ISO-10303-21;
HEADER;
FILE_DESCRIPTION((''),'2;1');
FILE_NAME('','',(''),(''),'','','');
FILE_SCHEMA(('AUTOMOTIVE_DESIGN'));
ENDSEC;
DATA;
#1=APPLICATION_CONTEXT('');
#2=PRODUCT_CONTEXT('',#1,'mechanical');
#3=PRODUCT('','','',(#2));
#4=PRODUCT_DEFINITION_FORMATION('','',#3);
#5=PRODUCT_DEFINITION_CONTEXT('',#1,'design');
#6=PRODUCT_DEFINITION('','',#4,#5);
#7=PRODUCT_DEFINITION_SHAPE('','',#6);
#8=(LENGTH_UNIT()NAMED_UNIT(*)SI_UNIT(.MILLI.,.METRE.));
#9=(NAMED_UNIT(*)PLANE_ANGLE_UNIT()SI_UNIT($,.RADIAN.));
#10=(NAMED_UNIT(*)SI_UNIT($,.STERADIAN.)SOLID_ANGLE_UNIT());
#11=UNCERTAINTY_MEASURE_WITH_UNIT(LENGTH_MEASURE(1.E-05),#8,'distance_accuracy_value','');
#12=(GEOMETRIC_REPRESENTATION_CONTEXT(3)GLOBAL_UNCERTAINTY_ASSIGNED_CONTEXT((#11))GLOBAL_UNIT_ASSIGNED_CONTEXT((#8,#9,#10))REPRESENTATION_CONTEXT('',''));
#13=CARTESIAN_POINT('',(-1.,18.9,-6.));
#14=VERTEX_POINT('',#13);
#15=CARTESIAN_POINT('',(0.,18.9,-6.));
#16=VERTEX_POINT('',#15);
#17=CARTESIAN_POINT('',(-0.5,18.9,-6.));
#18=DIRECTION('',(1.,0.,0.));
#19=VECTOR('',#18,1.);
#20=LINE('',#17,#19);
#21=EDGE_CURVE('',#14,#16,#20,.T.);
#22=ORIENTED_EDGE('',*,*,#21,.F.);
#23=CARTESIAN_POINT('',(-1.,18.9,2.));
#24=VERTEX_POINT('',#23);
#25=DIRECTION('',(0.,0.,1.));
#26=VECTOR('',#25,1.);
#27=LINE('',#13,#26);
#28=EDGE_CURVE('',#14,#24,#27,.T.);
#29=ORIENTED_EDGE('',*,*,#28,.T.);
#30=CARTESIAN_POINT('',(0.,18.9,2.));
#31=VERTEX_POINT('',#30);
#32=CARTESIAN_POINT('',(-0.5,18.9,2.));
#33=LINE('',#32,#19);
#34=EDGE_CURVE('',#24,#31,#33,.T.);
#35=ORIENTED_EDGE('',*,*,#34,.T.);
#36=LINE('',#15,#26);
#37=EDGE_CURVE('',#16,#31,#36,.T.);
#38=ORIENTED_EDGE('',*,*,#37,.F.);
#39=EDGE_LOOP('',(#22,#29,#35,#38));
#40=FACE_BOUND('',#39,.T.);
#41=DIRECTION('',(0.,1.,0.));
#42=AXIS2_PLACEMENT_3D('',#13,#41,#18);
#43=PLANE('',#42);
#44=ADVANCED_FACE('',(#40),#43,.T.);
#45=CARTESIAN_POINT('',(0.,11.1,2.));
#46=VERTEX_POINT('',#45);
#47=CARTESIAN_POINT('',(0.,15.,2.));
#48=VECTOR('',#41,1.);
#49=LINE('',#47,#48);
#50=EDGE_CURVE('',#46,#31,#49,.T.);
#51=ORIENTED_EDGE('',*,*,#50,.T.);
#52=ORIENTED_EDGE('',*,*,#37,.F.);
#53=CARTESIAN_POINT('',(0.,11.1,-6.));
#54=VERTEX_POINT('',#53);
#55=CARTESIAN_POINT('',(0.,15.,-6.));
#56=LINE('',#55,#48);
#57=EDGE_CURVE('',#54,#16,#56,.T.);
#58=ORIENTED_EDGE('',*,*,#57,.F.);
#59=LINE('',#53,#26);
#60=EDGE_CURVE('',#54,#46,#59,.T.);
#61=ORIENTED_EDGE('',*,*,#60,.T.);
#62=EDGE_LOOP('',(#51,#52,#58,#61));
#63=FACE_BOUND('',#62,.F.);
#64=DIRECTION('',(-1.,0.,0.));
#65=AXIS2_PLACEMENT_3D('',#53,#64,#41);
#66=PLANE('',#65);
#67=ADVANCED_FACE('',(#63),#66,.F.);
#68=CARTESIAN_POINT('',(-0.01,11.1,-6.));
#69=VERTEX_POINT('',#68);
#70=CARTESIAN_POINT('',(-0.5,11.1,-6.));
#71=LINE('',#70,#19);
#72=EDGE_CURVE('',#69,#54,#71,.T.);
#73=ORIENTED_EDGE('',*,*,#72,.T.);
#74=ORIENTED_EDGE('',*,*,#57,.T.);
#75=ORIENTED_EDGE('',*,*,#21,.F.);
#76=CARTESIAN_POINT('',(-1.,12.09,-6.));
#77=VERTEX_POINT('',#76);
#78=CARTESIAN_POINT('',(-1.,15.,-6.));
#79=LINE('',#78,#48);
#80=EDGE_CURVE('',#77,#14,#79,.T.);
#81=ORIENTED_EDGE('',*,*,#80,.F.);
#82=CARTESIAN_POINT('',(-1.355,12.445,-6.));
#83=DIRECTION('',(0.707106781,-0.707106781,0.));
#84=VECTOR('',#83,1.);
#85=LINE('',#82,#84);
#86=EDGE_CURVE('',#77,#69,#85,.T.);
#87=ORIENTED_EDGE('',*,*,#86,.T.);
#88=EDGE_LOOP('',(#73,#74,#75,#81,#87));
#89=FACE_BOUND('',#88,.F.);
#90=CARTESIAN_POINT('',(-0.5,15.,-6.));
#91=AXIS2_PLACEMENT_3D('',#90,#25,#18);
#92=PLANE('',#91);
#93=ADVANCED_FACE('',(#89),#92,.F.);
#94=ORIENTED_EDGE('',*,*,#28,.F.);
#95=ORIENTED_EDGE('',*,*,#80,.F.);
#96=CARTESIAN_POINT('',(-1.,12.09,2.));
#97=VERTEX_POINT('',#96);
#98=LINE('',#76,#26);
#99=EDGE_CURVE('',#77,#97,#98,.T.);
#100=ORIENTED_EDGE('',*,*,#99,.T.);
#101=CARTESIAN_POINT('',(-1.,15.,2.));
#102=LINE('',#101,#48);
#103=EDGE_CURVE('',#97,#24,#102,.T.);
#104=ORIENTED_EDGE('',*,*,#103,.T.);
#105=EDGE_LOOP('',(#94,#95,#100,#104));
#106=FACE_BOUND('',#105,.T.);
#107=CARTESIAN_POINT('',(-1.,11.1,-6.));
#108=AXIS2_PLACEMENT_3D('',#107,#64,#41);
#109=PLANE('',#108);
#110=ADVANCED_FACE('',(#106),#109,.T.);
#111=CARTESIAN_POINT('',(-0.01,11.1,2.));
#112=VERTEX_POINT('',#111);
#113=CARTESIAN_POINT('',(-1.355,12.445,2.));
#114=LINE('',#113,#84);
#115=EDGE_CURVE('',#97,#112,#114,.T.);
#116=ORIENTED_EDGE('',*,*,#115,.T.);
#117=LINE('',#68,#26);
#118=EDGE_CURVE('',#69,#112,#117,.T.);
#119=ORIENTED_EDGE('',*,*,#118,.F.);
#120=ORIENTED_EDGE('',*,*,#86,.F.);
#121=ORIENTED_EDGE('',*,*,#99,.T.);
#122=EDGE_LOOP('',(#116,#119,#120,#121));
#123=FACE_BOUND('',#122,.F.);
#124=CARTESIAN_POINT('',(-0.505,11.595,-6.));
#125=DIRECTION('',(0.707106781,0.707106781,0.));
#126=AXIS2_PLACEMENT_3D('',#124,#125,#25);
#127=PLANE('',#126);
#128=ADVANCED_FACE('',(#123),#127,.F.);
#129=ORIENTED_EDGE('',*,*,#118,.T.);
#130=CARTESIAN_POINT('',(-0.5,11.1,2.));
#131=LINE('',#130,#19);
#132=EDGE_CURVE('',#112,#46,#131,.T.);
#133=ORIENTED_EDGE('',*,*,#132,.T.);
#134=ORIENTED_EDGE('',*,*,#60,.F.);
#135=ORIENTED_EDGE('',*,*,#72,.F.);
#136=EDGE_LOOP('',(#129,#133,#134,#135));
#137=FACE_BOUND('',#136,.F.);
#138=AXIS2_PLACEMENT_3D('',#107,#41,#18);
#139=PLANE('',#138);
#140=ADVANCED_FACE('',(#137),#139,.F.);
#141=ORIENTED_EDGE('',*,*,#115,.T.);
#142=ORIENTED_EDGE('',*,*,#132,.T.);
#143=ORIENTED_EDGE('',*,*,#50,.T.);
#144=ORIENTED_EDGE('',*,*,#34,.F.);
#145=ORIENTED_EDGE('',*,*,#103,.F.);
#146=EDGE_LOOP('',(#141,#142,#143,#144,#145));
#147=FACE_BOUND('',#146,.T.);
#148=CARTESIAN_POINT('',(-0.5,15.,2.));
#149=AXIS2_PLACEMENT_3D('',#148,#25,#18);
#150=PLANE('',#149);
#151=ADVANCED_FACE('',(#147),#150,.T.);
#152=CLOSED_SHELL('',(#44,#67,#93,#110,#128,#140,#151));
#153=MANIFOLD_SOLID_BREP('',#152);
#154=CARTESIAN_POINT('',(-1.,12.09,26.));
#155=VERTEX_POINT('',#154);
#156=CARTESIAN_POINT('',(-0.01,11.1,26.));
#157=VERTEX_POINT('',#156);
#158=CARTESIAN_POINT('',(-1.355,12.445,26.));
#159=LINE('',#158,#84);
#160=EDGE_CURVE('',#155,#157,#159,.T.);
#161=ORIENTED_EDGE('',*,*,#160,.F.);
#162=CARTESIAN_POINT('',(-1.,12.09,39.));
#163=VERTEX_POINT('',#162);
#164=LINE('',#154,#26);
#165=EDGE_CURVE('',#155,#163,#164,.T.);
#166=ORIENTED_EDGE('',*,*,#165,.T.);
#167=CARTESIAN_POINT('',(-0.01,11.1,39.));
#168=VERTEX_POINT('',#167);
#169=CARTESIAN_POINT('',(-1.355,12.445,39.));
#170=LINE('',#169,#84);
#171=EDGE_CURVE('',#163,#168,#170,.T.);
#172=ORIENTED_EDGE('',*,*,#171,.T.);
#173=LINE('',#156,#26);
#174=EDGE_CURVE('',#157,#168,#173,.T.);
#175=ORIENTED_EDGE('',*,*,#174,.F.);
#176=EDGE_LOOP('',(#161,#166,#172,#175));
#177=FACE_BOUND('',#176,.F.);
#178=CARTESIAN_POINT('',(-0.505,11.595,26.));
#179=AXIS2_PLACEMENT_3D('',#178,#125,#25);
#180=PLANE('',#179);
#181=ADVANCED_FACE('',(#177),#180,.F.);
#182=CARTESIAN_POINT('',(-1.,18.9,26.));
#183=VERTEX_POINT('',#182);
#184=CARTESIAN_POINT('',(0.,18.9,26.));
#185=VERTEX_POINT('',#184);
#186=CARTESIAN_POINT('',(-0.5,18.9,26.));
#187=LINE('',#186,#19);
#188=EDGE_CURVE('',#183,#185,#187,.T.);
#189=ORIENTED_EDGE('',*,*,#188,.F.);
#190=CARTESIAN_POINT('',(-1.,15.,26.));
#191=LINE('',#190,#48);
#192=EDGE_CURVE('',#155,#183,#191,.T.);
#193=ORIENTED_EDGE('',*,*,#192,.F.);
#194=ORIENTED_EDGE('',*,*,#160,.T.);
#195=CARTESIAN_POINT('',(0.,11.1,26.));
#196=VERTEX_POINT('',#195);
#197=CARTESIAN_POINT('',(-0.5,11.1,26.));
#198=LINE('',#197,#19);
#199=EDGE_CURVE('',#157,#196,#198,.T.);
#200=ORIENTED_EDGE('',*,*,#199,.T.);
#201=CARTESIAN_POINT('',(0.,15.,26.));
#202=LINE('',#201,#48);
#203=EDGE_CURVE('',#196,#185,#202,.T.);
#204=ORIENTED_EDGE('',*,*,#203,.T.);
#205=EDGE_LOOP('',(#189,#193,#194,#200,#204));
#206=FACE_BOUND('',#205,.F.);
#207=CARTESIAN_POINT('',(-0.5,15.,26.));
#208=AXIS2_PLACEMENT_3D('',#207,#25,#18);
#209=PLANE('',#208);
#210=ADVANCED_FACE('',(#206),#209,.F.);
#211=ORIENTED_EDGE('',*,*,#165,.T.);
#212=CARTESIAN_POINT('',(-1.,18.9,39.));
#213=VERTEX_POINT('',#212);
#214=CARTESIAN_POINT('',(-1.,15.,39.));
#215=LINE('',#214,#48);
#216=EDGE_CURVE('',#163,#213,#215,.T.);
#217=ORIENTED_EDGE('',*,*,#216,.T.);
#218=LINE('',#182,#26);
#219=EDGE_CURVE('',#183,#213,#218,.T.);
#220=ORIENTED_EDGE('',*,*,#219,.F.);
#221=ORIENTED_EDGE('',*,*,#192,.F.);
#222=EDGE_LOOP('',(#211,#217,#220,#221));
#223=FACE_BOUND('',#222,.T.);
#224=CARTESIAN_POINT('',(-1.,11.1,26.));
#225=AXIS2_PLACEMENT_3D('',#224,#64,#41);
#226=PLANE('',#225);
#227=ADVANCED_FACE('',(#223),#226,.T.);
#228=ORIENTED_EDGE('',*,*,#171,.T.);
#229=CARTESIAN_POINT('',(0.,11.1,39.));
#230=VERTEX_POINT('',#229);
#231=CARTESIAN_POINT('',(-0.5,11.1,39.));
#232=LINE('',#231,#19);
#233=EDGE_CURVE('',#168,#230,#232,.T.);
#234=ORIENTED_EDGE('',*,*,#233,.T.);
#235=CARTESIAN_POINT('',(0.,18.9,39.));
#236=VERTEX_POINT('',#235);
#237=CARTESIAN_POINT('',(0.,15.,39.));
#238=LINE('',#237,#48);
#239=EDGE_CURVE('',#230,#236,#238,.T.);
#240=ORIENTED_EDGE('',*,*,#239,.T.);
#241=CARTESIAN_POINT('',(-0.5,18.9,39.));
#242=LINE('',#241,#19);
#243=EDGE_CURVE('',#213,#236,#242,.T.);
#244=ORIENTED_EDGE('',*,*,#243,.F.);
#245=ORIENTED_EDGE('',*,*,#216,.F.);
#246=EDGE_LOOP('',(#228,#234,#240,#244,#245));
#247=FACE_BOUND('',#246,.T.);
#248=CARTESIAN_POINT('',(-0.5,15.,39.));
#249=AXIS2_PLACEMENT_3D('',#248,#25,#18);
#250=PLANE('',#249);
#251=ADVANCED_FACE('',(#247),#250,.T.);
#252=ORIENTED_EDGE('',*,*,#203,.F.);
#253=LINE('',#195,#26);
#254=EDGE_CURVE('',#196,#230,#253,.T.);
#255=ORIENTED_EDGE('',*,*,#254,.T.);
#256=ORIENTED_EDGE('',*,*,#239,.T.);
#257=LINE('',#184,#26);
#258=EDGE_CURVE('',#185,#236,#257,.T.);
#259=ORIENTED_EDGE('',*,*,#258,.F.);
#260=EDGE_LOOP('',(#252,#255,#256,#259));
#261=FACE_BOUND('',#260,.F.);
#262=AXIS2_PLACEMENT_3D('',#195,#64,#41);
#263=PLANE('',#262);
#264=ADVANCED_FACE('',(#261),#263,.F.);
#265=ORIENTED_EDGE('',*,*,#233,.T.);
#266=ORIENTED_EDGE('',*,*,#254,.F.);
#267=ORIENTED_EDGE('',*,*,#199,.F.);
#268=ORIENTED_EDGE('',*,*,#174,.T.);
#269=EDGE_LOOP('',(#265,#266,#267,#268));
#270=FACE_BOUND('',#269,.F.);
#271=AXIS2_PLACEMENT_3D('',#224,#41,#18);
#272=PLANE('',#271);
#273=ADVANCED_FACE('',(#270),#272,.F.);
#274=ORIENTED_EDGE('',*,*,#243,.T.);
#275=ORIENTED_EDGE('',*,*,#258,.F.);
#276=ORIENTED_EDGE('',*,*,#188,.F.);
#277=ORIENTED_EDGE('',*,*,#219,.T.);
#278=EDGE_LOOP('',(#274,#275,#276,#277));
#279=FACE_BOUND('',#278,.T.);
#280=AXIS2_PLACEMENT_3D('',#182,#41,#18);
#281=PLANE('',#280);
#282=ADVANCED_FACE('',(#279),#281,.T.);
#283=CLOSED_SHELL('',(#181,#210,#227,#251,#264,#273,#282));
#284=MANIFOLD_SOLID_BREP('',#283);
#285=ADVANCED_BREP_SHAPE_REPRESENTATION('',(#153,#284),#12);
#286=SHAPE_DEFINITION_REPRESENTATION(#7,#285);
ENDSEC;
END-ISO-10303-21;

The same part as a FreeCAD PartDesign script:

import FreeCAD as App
import Part
import Sketcher
from FreeCAD import Vector


def edges_at(feature, points):
    """Names of the edges that pass closest to the given points."""
    edges = feature.Shape.Edges
    near = lambda p: min(range(len(edges)), key=lambda i: edges[i].distToShape(Part.Vertex(*p))[0])
    return sorted({f"Edge{near(p) + 1}" for p in points})

doc = App.newDocument("Part")
body = doc.addObject("PartDesign::Body", "Body")

# Sketch on XY plane
sketch1 = body.newObject("Sketcher::SketchObject", "Sketch")
sketch1.AttachmentSupport = (doc.getObject("XY_Plane"), [""])
sketch1.MapMode = "FlatFace"
sketch1.AttachmentOffset = App.Placement(Vector(0, 0, 26), App.Rotation())
sketch1.addGeometry(Part.LineSegment(Vector(-1, 18.9, 0), Vector(-1, 11.1, 0)), False)
sketch1.addGeometry(Part.LineSegment(Vector(-1, 11.1, 0), Vector(0, 11.1, 0)), False)
sketch1.addGeometry(Part.LineSegment(Vector(0, 11.1, 0), Vector(0, 18.9, 0)), False)
sketch1.addGeometry(Part.LineSegment(Vector(0, 18.9, 0), Vector(-1, 18.9, 0)), False)
sketch1.addConstraint(Sketcher.Constraint("Coincident", 0, 2, 1, 1))
sketch1.addConstraint(Sketcher.Constraint("Coincident", 1, 2, 2, 1))
sketch1.addConstraint(Sketcher.Constraint("Coincident", 2, 2, 3, 1))
sketch1.addConstraint(Sketcher.Constraint("Coincident", 3, 2, 0, 1))
sketch1.addConstraint(Sketcher.Constraint("Vertical", 0))
sketch1.addConstraint(Sketcher.Constraint("Horizontal", 1))
sketch1.addConstraint(Sketcher.Constraint("Vertical", 2))
sketch1.addConstraint(Sketcher.Constraint("Horizontal", 3))
sketch1.addConstraint(Sketcher.Constraint("PointOnObject", 1, 2, -2))
sketch1.addConstraint(Sketcher.Constraint("DistanceX", 1, 1, 1, 2, 1.0))
sketch1.addConstraint(Sketcher.Constraint("DistanceY", 0, 2, 0, 1, 7.8))
sketch1.addConstraint(Sketcher.Constraint("DistanceY", -1, 1, 0, 2, 11.1))
pad1 = body.newObject("PartDesign::Pad", "Pad")
pad1.Profile = sketch1
pad1.Length = 13
body2 = doc.addObject("PartDesign::Body", "Body001")
body2.AllowCompound = True

# Sketch on XY plane
sketch2 = body2.newObject("Sketcher::SketchObject", "Sketch001")
sketch2.AttachmentSupport = (doc.getObject("XY_Plane001"), [""])
sketch2.MapMode = "FlatFace"
sketch2.AttachmentOffset = App.Placement(Vector(0, 0, -6), App.Rotation())
sketch2.addGeometry(Part.LineSegment(Vector(-1, 18.9, 0), Vector(-1, 11.1, 0)), False)
sketch2.addGeometry(Part.LineSegment(Vector(-1, 11.1, 0), Vector(0, 11.1, 0)), False)
sketch2.addGeometry(Part.LineSegment(Vector(0, 11.1, 0), Vector(0, 18.9, 0)), False)
sketch2.addGeometry(Part.LineSegment(Vector(0, 18.9, 0), Vector(-1, 18.9, 0)), False)
sketch2.addConstraint(Sketcher.Constraint("Coincident", 0, 2, 1, 1))
sketch2.addConstraint(Sketcher.Constraint("Coincident", 1, 2, 2, 1))
sketch2.addConstraint(Sketcher.Constraint("Coincident", 2, 2, 3, 1))
sketch2.addConstraint(Sketcher.Constraint("Coincident", 3, 2, 0, 1))
sketch2.addConstraint(Sketcher.Constraint("Vertical", 0))
sketch2.addConstraint(Sketcher.Constraint("Horizontal", 1))
sketch2.addConstraint(Sketcher.Constraint("Vertical", 2))
sketch2.addConstraint(Sketcher.Constraint("Horizontal", 3))
sketch2.addConstraint(Sketcher.Constraint("PointOnObject", 1, 2, -2))
sketch2.addConstraint(Sketcher.Constraint("DistanceX", 1, 1, 1, 2, 1.0))
sketch2.addConstraint(Sketcher.Constraint("DistanceY", 0, 2, 0, 1, 7.8))
sketch2.addConstraint(Sketcher.Constraint("DistanceY", -1, 1, 0, 2, 11.1))
pad2 = body2.newObject("PartDesign::Pad", "Pad001")
pad2.Profile = sketch2
pad2.Length = 8
doc.recompute()

boolean = body2.newObject("PartDesign::Boolean", "Boolean")
boolean.Type = "Fuse"
boolean.addObjects([body])
doc.recompute()

chamfer = body2.newObject("PartDesign::Chamfer", "Chamfer")
chamfer.Base = (boolean, edges_at(boolean, [(-1, 11.1, -2), (-1, 11.1, 32.5)]))
chamfer.Size = 0.99

doc.recompute()
